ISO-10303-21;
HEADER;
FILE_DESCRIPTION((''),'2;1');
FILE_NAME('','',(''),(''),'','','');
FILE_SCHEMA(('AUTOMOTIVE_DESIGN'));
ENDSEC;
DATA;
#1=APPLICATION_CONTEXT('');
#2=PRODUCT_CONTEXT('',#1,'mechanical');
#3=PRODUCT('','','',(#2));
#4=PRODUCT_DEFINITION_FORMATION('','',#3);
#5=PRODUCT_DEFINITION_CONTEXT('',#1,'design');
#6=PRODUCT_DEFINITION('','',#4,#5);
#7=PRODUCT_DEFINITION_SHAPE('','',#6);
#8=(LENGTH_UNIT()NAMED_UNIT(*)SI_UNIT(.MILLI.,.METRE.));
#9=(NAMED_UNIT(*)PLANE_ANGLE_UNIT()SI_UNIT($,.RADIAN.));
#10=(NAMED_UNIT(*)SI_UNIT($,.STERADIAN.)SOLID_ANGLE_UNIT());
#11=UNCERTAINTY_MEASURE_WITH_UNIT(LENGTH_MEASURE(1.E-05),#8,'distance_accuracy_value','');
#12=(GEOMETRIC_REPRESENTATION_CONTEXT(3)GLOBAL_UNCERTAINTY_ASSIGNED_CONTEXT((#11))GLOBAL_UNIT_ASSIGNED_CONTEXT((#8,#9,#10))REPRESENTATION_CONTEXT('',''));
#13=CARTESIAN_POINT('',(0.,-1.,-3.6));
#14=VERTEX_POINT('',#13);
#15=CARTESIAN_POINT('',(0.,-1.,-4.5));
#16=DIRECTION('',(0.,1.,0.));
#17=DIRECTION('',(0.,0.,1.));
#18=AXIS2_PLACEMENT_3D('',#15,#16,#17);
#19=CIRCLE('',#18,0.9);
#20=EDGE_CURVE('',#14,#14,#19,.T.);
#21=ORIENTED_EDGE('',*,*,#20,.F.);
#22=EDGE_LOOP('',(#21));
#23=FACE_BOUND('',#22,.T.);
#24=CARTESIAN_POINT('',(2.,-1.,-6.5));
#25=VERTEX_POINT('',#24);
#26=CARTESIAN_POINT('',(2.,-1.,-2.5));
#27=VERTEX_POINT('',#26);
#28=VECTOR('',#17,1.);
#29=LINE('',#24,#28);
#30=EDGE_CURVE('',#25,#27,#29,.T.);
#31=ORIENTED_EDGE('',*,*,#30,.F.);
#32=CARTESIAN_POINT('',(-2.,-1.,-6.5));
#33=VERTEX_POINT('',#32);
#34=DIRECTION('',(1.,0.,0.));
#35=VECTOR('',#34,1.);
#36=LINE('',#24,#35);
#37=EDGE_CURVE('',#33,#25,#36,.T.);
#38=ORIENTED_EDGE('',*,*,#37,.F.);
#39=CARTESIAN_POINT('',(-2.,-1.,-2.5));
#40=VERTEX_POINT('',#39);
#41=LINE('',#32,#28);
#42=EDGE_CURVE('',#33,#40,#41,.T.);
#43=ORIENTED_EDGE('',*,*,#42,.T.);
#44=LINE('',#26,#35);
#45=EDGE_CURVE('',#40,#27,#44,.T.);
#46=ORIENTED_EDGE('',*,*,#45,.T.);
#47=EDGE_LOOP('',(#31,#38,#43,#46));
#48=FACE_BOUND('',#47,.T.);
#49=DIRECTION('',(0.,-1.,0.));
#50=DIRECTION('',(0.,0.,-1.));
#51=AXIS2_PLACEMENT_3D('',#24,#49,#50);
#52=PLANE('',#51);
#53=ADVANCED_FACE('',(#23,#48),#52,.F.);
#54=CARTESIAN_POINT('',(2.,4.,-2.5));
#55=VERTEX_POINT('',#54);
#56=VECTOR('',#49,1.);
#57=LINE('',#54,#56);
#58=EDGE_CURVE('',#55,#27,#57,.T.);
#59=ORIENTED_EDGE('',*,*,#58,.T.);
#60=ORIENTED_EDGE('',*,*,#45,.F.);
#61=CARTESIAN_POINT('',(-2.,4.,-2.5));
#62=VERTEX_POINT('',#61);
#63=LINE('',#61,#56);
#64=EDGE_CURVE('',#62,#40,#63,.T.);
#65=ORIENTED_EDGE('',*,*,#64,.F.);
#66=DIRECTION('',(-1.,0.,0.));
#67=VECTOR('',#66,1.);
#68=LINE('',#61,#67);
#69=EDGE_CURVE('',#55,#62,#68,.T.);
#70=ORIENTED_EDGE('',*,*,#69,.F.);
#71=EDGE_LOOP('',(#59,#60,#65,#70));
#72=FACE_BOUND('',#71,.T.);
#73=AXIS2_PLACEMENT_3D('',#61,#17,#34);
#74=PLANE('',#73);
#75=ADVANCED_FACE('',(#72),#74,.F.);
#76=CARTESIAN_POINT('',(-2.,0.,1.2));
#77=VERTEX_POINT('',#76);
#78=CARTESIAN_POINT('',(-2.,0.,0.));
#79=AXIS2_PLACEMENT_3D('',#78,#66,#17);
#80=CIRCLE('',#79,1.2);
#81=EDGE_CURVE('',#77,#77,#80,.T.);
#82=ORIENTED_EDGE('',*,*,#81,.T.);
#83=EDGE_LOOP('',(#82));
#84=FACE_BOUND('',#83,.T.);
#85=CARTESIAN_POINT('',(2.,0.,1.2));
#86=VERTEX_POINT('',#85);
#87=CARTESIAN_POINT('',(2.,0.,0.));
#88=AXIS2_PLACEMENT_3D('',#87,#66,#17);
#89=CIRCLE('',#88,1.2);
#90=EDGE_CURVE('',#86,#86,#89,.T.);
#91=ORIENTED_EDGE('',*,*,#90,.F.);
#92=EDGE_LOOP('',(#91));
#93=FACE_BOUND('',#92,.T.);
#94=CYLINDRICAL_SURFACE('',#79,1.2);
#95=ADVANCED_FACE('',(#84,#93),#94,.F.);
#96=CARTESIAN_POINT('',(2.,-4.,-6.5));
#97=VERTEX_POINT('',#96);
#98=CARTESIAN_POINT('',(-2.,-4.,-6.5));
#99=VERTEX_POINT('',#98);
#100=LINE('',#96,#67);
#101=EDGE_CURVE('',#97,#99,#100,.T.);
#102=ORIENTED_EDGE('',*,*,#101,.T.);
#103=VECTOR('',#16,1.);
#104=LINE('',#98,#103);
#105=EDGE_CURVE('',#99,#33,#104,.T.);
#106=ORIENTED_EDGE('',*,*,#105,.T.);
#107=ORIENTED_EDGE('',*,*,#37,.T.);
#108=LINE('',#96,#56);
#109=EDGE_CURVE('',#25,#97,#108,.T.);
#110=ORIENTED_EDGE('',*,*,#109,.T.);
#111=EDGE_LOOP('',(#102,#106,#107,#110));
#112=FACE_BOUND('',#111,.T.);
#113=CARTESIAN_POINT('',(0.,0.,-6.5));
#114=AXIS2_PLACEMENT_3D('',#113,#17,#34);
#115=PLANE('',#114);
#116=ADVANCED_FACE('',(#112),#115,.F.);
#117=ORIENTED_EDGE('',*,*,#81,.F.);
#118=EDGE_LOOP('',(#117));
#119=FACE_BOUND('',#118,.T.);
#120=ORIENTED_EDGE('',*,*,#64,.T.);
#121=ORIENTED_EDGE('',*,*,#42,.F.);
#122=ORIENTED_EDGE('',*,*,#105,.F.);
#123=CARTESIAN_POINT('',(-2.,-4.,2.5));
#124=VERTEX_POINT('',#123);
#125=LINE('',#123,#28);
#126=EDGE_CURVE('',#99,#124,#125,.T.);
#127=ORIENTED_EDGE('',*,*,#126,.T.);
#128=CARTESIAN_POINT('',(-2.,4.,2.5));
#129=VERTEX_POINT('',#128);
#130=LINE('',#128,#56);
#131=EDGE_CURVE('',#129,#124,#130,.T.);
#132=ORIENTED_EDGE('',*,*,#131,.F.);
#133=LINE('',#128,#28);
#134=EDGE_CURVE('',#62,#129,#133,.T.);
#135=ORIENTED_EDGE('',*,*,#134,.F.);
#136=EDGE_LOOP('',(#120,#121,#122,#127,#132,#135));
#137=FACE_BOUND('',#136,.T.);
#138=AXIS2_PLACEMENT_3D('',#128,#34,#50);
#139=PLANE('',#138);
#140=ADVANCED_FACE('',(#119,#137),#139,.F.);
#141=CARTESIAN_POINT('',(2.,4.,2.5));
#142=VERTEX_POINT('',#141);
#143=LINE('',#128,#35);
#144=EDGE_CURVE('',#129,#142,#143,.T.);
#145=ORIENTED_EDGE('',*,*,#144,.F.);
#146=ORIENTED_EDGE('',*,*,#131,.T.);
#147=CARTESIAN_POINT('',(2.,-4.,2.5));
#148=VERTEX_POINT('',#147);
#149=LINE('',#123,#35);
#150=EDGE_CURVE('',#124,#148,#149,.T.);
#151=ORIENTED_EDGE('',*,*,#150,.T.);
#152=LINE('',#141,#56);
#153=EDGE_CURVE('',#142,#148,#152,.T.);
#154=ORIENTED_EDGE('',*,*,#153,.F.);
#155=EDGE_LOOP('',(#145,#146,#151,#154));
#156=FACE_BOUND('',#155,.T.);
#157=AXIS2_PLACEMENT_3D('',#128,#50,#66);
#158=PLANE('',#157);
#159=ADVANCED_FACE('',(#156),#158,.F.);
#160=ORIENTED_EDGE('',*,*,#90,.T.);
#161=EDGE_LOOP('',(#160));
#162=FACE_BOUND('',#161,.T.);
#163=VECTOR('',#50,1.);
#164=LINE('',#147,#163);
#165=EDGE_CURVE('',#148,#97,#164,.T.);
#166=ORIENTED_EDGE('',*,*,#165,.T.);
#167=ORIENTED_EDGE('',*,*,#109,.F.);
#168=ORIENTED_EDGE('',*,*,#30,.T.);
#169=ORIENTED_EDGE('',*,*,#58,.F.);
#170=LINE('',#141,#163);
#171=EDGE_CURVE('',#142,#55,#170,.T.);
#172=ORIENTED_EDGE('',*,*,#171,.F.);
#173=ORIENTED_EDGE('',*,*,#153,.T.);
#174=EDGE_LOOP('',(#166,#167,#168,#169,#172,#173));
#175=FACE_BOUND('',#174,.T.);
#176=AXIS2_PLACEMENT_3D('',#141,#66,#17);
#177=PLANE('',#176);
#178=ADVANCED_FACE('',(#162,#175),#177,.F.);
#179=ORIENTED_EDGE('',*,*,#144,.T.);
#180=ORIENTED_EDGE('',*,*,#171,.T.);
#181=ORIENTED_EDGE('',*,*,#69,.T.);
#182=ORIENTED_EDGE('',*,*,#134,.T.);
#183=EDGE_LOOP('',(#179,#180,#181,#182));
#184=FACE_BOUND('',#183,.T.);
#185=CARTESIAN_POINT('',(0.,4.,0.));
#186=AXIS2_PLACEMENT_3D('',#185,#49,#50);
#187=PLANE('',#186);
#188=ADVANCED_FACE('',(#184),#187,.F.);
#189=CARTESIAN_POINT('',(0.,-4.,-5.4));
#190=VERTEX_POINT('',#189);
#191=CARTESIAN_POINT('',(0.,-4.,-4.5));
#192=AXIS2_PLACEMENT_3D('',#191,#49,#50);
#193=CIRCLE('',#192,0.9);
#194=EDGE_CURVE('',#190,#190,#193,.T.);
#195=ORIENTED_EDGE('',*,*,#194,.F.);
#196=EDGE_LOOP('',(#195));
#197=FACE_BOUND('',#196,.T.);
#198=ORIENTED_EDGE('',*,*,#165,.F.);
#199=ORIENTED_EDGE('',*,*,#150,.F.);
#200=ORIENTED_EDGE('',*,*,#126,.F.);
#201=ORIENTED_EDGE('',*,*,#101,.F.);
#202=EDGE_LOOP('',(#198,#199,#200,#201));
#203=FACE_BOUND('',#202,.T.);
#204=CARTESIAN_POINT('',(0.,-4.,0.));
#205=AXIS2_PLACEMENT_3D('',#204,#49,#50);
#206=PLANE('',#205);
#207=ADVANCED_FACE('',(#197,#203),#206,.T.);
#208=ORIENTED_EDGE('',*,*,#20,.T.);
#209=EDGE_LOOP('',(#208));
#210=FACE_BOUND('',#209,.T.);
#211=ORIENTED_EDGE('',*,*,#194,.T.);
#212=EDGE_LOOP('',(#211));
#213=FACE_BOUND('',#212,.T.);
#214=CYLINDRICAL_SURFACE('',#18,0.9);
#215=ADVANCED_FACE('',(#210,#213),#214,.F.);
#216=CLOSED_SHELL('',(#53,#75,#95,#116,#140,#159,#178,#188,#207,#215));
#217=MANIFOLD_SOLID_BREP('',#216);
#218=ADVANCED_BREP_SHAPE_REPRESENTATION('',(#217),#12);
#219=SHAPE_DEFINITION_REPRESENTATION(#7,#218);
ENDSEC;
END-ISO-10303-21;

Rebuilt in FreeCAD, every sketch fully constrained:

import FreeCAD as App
import Part
import Sketcher
from FreeCAD import Vector

doc = App.newDocument("Part")
body = doc.addObject("PartDesign::Body", "Body")

# Sketch on XZ plane
sketch1 = doc.addObject("Sketcher::SketchObject", "Sketch")
body.addObject(sketch1)
sketch1.AttachmentSupport = (doc.XZ_Plane, [""])
sketch1.MapMode = "FlatFace"
sketch1.addGeometry([
    Part.LineSegment(Vector(-2, -2.5, 0), Vector(-2, 2.5, 0)),
    Part.LineSegment(Vector(-2, 2.5, 0), Vector(2, 2.5, 0)),
    Part.LineSegment(Vector(2, 2.5, 0), Vector(2, -2.5, 0)),
    Part.LineSegment(Vector(2, -2.5, 0), Vector(-2, -2.5, 0)),
], False)
sketch1.addConstraint([
    Sketcher.Constraint("Coincident", 0, 2, 1, 1),
    Sketcher.Constraint("Coincident", 1, 2, 2, 1),
    Sketcher.Constraint("Coincident", 2, 2, 3, 1),
    Sketcher.Constraint("Coincident", 3, 2, 0, 1),
    Sketcher.Constraint("Vertical", 0),
    Sketcher.Constraint("Horizontal", 1),
    Sketcher.Constraint("Vertical", 2),
    Sketcher.Constraint("Horizontal", 3),
    Sketcher.Constraint("Symmetric", 0, 2, 2, 2, -1, 1),
    Sketcher.Constraint("DistanceX", 1, 1, 1, 2, 4.0),
    Sketcher.Constraint("DistanceY", 0, 1, 0, 2, 5.0),
])
pad1 = doc.addObject("PartDesign::Pad", "Pad")
body.addObject(pad1)
pad1.Profile = sketch1
pad1.Length = 8
pad1.Midplane = True

# Sketch on XY plane
sketch2 = doc.addObject("Sketcher::SketchObject", "Sketch001")
body.addObject(sketch2)
sketch2.AttachmentSupport = (doc.XY_Plane, [""])
sketch2.MapMode = "FlatFace"
sketch2.AttachmentOffset = App.Placement(Vector(0, 0, -2.5), App.Rotation())
sketch2.addGeometry([
    Part.LineSegment(Vector(2, -1, 0), Vector(2, -4, 0)),
    Part.LineSegment(Vector(2, -4, 0), Vector(-2, -4, 0)),
    Part.LineSegment(Vector(-2, -4, 0), Vector(-2, -1, 0)),
    Part.LineSegment(Vector(-2, -1, 0), Vector(2, -1, 0)),
], False)
sketch2.addConstraint([
    Sketcher.Constraint("Coincident", 0, 2, 1, 1),
    Sketcher.Constraint("Coincident", 1, 2, 2, 1),
    Sketcher.Constraint("Coincident", 2, 2, 3, 1),
    Sketcher.Constraint("Coincident", 3, 2, 0, 1),
    Sketcher.Constraint("Vertical", 0),
    Sketcher.Constraint("Horizontal", 1),
    Sketcher.Constraint("Vertical", 2),
    Sketcher.Constraint("Horizontal", 3),
    Sketcher.Constraint("DistanceX", 1, 2, 1, 1, 4.0),
    Sketcher.Constraint("DistanceY", 0, 2, 0, 1, 3.0),
    Sketcher.Constraint("DistanceX", -1, 1, 0, 2, 2.0),
    Sketcher.Constraint("DistanceY", 0, 2, -1, 1, 4.0),
])
pad2 = doc.addObject("PartDesign::Pad", "Pad001")
body.addObject(pad2)
pad2.Profile = sketch2
pad2.Length = 4
pad2.Reversed = True

# Sketch on XZ plane
sketch3 = doc.addObject("Sketcher::SketchObject", "Sketch002")
body.addObject(sketch3)
sketch3.AttachmentSupport = (doc.XZ_Plane, [""])
sketch3.MapMode = "FlatFace"
sketch3.AttachmentOffset = App.Placement(Vector(0, 0, 1), App.Rotation())
sketch3.addGeometry(Part.Circle(Vector(0, -4.5, 0), Vector(0, 0, 1), 0.9), False)
sketch3.addConstraint([
    Sketcher.Constraint("PointOnObject", 0, 3, -2),
    Sketcher.Constraint("Diameter", 0, 1.8),
    Sketcher.Constraint("DistanceY", 0, 3, -1, 1, 4.5),
])
doc.recompute()
hole = doc.addObject("PartDesign::Hole", "Hole")
body.addObject(hole)
hole.Profile = sketch3
hole.ThreadType = "None"
hole.Diameter = 1.8
hole.DepthType = "Dimension"
hole.Depth = 4
hole.DrillPoint = "Angled"
hole.DrillPointAngle = 118
hole.Reversed = True

# Sketch on YZ plane
sketch4 = doc.addObject("Sketcher::SketchObject", "Sketch003")
body.addObject(sketch4)
sketch4.AttachmentSupport = (doc.YZ_Plane, [""])
sketch4.MapMode = "FlatFace"
sketch4.AttachmentOffset = App.Placement(Vector(0, 0, -2), App.Rotation())
sketch4.addGeometry(Part.Circle(Vector(0, 0, 0), Vector(0, 0, 1), 1.2), False)
sketch4.addConstraint([
    Sketcher.Constraint("Coincident", 0, 3, -1, 1),
    Sketcher.Constraint("Diameter", 0, 2.4),
])
doc.recompute()
hole2 = doc.addObject("PartDesign::Hole", "Hole001")
body.addObject(hole2)
hole2.Profile = sketch4
hole2.ThreadType = "None"
hole2.Diameter = 2.4
hole2.DepthType = "Dimension"
hole2.Depth = 4
hole2.DrillPoint = "Angled"
hole2.DrillPointAngle = 118
hole2.Reversed = True

doc.recompute()
